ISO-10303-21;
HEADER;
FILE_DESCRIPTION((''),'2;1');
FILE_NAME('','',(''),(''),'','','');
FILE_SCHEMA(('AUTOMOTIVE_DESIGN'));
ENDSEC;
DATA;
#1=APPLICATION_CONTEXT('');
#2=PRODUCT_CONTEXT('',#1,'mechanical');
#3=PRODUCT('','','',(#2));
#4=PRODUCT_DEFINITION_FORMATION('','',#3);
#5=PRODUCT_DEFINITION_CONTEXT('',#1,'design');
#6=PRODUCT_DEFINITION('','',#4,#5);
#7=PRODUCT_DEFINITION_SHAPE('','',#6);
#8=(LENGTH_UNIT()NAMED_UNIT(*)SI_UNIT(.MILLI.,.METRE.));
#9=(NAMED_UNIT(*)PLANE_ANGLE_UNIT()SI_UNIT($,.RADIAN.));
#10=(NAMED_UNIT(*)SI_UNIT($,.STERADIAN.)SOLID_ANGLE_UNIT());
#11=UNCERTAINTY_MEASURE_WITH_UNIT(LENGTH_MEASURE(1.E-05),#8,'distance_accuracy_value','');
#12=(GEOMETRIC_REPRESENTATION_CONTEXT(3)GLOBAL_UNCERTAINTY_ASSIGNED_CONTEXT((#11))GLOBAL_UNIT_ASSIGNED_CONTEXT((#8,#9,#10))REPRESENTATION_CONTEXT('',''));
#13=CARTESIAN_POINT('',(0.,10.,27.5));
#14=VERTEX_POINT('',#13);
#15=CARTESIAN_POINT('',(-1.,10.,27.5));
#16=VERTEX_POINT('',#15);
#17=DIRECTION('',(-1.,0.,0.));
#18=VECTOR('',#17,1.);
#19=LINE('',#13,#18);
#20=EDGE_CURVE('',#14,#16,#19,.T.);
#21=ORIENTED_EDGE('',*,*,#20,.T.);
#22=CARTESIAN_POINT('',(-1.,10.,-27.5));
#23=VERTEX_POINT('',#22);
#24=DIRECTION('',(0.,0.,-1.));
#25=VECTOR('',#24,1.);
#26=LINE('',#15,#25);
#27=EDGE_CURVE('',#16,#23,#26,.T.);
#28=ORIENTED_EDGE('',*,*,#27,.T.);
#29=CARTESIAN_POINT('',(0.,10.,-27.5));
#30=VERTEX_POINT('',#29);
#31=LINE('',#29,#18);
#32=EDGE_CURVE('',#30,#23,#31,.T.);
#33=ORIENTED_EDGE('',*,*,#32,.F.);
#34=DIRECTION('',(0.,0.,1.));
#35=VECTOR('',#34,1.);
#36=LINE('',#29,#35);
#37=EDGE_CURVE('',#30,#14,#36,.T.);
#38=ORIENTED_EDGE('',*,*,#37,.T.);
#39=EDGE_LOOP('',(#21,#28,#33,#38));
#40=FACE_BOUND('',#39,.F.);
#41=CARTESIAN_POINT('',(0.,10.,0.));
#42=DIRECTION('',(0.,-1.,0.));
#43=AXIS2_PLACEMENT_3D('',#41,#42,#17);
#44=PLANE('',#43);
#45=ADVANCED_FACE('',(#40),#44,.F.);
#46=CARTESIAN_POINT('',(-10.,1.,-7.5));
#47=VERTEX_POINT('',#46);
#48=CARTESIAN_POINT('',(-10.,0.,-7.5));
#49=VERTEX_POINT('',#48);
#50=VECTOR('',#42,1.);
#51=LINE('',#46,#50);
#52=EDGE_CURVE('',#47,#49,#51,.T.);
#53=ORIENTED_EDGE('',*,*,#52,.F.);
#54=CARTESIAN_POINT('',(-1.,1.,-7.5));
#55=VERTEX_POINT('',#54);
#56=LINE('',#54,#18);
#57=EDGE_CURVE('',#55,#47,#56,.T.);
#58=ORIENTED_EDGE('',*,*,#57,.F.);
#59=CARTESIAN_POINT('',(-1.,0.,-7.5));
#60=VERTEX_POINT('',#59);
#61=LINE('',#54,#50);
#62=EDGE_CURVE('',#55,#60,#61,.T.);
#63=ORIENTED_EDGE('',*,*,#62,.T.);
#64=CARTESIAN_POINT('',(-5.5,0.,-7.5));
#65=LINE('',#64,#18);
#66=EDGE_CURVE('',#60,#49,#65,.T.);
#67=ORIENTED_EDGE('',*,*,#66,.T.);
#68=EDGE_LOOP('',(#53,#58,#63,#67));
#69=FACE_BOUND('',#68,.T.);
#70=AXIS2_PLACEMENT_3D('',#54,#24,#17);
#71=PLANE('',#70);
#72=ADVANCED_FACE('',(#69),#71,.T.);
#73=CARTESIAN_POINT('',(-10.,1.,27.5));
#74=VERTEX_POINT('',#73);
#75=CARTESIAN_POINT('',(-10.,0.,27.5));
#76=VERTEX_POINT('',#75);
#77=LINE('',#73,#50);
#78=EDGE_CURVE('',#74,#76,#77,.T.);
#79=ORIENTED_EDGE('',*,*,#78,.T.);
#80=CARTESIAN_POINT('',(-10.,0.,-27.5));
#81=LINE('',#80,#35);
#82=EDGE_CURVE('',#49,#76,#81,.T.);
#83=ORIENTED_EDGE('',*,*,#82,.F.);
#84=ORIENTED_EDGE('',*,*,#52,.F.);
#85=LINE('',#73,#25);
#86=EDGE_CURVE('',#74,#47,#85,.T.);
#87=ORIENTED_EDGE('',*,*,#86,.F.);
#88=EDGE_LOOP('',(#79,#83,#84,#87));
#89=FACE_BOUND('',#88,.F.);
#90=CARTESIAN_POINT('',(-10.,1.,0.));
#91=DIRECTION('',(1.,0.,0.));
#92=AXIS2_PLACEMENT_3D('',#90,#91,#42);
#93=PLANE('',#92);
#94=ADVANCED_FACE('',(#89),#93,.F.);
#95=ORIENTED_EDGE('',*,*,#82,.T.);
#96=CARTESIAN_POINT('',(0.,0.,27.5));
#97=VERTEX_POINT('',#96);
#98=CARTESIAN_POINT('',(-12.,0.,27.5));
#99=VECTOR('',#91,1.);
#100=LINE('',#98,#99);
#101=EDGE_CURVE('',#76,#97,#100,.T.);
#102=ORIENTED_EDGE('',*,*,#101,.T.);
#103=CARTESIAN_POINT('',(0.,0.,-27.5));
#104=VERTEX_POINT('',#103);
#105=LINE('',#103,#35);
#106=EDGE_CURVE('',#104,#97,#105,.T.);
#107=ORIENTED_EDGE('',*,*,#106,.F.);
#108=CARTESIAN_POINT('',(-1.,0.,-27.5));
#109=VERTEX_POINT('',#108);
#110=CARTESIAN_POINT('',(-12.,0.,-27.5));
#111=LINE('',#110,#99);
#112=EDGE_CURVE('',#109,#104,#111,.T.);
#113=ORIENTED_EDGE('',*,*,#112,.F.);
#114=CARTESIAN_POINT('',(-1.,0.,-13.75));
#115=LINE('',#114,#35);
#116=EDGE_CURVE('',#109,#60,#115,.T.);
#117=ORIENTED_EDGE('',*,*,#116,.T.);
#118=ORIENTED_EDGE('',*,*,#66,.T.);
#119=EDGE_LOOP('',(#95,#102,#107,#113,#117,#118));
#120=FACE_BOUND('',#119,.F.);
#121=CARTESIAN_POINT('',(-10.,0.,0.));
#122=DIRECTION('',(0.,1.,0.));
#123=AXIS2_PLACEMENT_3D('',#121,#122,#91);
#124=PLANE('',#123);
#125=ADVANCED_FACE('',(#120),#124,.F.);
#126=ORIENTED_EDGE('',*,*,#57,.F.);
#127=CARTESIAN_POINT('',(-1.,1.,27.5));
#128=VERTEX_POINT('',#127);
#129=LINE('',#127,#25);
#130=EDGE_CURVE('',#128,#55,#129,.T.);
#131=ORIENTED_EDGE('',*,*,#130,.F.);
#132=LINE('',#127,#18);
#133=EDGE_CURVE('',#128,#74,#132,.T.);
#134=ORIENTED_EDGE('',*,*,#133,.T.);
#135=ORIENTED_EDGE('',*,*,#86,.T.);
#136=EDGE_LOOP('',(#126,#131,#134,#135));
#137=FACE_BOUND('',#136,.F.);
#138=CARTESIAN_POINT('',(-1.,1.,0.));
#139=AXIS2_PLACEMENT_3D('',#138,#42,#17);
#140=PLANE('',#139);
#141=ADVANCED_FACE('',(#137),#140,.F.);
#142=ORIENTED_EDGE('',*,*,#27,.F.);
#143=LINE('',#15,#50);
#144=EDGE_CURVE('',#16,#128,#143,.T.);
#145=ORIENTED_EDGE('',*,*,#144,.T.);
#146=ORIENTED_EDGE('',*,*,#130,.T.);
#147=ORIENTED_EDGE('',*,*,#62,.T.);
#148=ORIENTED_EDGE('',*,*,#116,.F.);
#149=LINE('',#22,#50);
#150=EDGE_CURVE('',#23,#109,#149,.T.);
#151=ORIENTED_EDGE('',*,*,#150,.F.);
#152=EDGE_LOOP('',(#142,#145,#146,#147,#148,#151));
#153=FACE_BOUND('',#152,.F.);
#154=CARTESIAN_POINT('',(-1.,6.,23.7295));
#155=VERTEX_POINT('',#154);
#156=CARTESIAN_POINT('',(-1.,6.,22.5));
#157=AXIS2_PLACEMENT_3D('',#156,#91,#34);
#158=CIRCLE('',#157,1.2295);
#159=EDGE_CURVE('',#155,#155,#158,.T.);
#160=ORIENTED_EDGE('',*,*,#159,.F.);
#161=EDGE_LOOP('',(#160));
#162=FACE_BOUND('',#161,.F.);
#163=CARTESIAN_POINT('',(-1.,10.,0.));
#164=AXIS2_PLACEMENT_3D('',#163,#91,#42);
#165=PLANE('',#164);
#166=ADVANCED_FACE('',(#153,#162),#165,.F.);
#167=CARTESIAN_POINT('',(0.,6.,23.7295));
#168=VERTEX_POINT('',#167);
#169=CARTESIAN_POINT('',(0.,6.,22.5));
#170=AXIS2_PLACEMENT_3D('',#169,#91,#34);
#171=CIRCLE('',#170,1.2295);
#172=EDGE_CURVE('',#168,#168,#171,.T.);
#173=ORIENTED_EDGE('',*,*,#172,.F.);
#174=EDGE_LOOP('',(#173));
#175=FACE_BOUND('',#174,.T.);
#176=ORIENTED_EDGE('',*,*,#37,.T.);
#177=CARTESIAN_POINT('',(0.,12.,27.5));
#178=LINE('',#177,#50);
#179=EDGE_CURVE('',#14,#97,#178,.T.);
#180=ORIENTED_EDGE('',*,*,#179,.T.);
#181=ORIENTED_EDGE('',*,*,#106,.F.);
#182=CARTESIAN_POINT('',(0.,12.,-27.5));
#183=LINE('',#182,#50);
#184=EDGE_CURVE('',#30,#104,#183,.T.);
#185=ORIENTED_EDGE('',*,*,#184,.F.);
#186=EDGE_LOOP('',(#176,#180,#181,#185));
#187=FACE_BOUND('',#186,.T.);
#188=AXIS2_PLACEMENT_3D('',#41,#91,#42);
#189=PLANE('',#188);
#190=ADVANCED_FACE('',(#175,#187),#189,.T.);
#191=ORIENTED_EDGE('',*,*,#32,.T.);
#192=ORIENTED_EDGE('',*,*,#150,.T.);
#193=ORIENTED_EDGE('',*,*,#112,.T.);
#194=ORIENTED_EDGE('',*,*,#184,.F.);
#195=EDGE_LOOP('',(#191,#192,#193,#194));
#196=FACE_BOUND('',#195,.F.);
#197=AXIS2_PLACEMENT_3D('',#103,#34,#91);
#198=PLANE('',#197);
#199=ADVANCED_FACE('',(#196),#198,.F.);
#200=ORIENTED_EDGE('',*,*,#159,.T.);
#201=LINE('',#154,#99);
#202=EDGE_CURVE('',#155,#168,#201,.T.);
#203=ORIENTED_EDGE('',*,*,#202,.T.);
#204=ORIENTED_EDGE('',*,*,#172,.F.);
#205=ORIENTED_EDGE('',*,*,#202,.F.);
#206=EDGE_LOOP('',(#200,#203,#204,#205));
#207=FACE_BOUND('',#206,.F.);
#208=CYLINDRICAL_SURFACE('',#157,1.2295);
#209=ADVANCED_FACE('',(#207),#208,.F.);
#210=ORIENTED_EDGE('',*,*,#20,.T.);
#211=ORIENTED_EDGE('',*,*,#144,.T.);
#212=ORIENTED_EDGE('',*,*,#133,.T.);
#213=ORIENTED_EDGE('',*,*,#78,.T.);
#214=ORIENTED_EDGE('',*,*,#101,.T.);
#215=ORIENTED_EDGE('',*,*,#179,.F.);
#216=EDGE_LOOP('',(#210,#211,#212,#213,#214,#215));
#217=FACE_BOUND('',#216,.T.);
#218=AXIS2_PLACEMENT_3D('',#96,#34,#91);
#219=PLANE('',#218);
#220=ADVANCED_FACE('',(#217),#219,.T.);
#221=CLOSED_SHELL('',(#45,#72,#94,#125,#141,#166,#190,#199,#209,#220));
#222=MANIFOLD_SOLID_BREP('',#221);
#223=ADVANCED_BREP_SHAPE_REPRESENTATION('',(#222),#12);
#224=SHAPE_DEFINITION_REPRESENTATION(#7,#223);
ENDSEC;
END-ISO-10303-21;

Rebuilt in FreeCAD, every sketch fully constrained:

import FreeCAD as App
import Part
import Sketcher

V = App.Vector
Q = App.Units.Quantity


def add_polygon(sketch, points):
    """Adds a closed chain of lines whose ends are joined by coincident constraints."""
    first, n = sketch.GeometryCount, len(points)
    for a, b in zip(points, points[1:] + points[:1]):
        sketch.addGeometry(Part.LineSegment(App.Vector(*a, 0), App.Vector(*b, 0)), False)
    for i in range(n):
        sketch.addConstraint(Sketcher.Constraint("Coincident", first + i, 2, first + (i + 1) % n, 1))

doc = App.newDocument("Part")
body = doc.addObject("PartDesign::Body", "Body")

# Sketch on XY plane
sketch1 = body.newObject("Sketcher::SketchObject", "Sketch")
sketch1.AttachmentSupport = (doc.getObject("XY_Plane"), [""])
sketch1.MapMode = "FlatFace"
add_polygon(sketch1, [(-10, 1), (-10, 0), (0, 0), (0, 10), (-1, 10), (-1, 1)])  # lines 0-5
sketch1.addConstraint(Sketcher.Constraint("Vertical", 0))
sketch1.addConstraint(Sketcher.Constraint("Horizontal", 1))
sketch1.addConstraint(Sketcher.Constraint("Vertical", 2))
sketch1.addConstraint(Sketcher.Constraint("Horizontal", 3))
sketch1.addConstraint(Sketcher.Constraint("Vertical", 4))
sketch1.addConstraint(Sketcher.Constraint("Horizontal", 5))
sketch1.addConstraint(Sketcher.Constraint("Coincident", 1, 2, -1, 1))
sketch1.addConstraint(Sketcher.Constraint("Equal", 3, 0))
sketch1.addConstraint(Sketcher.Constraint("Equal", 1, 2))
sketch1.addConstraint(Sketcher.Constraint("DistanceX", 1, 1, 1, 2, Q("10 mm")))
sketch1.addConstraint(Sketcher.Constraint("DistanceX", 3, 2, 3, 1, Q("1 mm")))
pad1 = body.newObject("PartDesign::Pad", "Pad")
pad1.Profile = sketch1
pad1.Length = 55
pad1.Midplane = True

# Sketch on YZ plane
sketch2 = body.newObject("Sketcher::SketchObject", "Sketch001")
sketch2.AttachmentSupport = (doc.getObject("YZ_Plane"), [""])
sketch2.MapMode = "FlatFace"
sketch2.AttachmentOffset = App.Placement(V(0, 0, -1), App.Rotation())
sketch2.addGeometry(Part.Circle(V(6, 22.5, 0), V(0, 0, 1), 1.2), False)
sketch2.addConstraint(Sketcher.Constraint("Diameter", 0, Q("2.459 mm")))
sketch2.addConstraint(Sketcher.Constraint("DistanceX", -1, 1, 0, 3, Q("6 mm")))
sketch2.addConstraint(Sketcher.Constraint("DistanceY", -1, 1, 0, 3, Q("22.5 mm")))
doc.recompute()
hole = body.newObject("PartDesign::Hole", "Hole")
hole.Profile = sketch2
hole.ThreadType = "None"
hole.Diameter = 2.459
hole.DepthType = "ThroughAll"
hole.Reversed = True

# Sketch on XZ plane
sketch3 = body.newObject("Sketcher::SketchObject", "Sketch002")
sketch3.AttachmentSupport = (doc.getObject("XZ_Plane"), [""])
sketch3.MapMode = "FlatFace"
sketch3.AttachmentOffset = App.Placement(V(0, 0, -1), App.Rotation())
add_polygon(sketch3, [(-10, -28), (-10, -8), (-1, -8), (-1, -28)])  # lines 0-3
sketch3.addConstraint(Sketcher.Constraint("Vertical", 0))
sketch3.addConstraint(Sketcher.Constraint("Horizontal", 1))
sketch3.addConstraint(Sketcher.Constraint("Vertical", 2))
sketch3.addConstraint(Sketcher.Constraint("Horizontal", 3))
sketch3.addConstraint(Sketcher.Constraint("DistanceY", 0, 1, 0, 2, Q("20 mm")))
sketch3.addConstraint(Sketcher.Constraint("DistanceX", 1, 1, 1, 2, Q("9 mm")))
sketch3.addConstraint(Sketcher.Constraint("DistanceX", 0, 2, -1, 1, Q("10 mm")))
sketch3.addConstraint(Sketcher.Constraint("DistanceY", 0, 2, -1, 1, Q("7.5 mm")))
pocket1 = body.newObject("PartDesign::Pocket", "Pocket")
pocket1.Profile = sketch3
pocket1.Type = "ThroughAll"
pocket1.Reversed = True

doc.recompute()
